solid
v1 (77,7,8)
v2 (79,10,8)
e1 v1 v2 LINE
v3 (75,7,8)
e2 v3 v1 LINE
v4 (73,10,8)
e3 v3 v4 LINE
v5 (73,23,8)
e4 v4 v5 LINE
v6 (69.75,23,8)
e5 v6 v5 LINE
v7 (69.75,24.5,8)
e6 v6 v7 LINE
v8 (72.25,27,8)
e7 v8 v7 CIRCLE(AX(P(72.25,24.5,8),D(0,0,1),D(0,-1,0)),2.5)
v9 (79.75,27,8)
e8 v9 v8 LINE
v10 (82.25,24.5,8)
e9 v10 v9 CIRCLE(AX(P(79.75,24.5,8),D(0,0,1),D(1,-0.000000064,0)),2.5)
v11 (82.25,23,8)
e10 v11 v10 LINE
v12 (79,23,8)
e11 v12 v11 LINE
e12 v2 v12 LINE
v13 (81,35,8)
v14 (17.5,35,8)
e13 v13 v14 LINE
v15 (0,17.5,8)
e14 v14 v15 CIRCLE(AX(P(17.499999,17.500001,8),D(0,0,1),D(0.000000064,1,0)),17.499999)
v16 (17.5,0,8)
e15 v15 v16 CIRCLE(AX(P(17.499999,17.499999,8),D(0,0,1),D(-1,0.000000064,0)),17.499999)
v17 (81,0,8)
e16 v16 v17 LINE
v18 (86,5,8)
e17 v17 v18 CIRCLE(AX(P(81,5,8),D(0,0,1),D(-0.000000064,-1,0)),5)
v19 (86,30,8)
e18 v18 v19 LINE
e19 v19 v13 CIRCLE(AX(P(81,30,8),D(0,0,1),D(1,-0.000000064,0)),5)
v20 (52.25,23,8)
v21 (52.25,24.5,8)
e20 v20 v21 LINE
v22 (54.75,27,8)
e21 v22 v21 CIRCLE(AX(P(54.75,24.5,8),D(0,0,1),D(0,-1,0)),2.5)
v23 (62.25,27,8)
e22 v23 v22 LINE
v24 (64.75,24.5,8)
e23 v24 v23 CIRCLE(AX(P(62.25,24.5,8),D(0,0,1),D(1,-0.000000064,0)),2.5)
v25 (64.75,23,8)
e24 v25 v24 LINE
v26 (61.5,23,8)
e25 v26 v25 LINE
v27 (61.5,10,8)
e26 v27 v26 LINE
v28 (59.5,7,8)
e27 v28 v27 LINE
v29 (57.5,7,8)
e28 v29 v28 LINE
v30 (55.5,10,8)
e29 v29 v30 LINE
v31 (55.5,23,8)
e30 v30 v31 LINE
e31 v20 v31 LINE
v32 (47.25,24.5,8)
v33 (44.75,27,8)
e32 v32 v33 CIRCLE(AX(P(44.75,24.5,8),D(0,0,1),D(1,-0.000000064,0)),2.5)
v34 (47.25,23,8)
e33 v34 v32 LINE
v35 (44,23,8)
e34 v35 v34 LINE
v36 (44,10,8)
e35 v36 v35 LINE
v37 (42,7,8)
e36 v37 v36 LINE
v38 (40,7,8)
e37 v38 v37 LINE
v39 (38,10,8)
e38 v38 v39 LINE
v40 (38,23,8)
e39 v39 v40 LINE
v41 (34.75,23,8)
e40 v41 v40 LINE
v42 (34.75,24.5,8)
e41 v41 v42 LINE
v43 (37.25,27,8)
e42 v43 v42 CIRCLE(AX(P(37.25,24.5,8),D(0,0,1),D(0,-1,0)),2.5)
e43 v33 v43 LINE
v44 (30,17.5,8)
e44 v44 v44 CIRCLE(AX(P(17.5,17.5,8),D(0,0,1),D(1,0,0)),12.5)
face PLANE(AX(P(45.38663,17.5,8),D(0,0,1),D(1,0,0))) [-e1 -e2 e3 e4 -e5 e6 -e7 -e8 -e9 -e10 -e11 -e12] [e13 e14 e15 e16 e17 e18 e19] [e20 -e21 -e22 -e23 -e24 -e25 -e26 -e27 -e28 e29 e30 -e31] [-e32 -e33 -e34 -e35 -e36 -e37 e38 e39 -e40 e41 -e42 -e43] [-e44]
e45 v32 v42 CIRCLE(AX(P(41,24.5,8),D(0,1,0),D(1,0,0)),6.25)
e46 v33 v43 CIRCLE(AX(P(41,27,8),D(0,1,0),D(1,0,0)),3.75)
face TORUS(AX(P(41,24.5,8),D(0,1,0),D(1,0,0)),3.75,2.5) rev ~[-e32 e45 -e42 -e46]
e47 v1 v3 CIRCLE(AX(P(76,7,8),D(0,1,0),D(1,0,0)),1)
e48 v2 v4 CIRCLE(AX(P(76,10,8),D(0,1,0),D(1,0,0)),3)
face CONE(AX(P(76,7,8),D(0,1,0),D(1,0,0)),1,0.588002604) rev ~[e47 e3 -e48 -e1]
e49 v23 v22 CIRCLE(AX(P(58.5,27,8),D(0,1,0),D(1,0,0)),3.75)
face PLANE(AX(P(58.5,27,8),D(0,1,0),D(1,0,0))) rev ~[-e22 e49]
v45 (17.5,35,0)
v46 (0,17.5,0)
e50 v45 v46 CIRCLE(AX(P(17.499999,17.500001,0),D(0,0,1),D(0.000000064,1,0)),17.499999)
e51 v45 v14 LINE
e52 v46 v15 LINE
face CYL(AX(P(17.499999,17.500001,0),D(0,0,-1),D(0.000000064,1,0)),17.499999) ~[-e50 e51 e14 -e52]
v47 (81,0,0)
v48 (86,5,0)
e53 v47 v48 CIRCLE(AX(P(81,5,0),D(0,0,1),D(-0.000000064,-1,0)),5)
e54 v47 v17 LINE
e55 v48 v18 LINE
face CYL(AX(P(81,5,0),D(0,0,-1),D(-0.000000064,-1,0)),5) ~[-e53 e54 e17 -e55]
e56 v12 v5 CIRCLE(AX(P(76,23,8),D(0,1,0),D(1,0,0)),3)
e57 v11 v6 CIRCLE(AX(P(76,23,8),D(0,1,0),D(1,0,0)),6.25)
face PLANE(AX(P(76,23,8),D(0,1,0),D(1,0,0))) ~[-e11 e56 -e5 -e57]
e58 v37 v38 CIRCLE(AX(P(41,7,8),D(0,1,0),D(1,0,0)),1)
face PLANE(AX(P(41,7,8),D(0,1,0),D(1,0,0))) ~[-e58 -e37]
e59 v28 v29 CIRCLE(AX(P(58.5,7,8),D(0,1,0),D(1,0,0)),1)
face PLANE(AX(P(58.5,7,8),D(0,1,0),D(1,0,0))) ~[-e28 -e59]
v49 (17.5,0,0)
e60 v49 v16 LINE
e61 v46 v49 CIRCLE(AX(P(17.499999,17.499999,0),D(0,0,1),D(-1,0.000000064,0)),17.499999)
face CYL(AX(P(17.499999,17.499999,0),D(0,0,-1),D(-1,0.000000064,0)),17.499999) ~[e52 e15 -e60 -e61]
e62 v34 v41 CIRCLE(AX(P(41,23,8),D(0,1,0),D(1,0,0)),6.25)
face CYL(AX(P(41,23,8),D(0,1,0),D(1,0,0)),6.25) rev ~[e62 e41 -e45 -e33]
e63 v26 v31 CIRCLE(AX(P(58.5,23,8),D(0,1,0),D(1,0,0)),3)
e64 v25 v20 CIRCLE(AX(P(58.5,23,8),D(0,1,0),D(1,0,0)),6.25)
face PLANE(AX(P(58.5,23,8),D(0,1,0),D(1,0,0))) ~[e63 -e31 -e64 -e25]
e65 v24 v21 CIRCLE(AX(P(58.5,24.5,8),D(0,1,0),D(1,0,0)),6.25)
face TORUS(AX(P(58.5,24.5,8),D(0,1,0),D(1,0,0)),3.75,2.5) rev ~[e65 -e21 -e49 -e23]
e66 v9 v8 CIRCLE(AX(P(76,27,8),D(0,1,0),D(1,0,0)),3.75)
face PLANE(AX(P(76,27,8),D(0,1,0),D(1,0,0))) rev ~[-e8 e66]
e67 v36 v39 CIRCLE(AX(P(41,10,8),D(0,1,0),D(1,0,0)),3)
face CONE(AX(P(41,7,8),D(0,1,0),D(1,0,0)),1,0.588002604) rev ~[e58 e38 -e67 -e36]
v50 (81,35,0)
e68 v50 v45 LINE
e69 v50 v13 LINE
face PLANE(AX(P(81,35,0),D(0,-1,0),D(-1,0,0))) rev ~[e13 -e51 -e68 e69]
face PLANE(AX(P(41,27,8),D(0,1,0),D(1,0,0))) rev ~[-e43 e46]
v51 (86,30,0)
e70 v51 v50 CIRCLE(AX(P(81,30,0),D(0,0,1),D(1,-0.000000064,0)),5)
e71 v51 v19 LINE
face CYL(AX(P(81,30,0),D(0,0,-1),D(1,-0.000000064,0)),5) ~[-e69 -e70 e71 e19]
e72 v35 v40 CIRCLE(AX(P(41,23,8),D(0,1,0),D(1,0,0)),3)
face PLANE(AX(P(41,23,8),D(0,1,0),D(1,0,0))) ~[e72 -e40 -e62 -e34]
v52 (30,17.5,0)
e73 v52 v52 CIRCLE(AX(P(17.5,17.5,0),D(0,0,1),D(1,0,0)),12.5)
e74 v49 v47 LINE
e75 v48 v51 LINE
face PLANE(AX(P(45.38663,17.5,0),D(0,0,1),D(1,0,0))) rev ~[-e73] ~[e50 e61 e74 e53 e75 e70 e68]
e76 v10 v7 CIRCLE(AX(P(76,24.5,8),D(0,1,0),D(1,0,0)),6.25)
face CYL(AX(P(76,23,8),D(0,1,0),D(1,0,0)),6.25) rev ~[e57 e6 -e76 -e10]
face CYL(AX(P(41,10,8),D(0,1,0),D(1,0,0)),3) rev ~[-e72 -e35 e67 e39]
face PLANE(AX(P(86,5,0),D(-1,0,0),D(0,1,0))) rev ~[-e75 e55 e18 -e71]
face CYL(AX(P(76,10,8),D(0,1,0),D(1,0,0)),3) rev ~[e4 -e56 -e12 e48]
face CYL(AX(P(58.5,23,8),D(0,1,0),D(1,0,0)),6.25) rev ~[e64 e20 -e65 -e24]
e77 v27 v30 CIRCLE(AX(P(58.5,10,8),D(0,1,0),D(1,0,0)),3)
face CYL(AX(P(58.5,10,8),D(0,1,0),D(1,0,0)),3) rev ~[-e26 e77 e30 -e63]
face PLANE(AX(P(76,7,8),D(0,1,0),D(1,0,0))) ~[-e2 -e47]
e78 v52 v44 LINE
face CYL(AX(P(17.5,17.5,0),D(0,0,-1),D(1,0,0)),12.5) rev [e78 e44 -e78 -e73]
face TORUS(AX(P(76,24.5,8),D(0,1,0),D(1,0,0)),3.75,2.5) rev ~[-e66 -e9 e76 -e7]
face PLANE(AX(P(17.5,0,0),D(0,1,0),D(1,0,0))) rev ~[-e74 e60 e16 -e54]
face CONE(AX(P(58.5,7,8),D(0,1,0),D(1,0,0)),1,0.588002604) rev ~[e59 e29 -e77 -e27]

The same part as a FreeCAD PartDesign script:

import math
import FreeCAD as App
import Part
import Sketcher

V = App.Vector

doc = App.newDocument("Part")
body = doc.addObject("PartDesign::Body", "Body")

sketch1 = body.newObject("Sketcher::SketchObject", "Sketch")
sketch1.AttachmentSupport = (doc.getObject("XY_Plane"), [""])
sketch1.MapMode = "FlatFace"
sketch1.addGeometry([
    Part.ArcOfCircle(Part.Circle(V(17.5, 17.5, 0), V(0, 0, 1), 17.5), math.radians(180), math.radians(270)),
    Part.LineSegment(V(17.5, 0, 0), V(81, 0, 0)),
    Part.ArcOfCircle(Part.Circle(V(81, 5, 0), V(0, 0, 1), 5), math.radians(-90), math.radians(0)),
    Part.LineSegment(V(86, 5, 0), V(86, 30, 0)),
    Part.ArcOfCircle(Part.Circle(V(81, 30, 0), V(0, 0, 1), 5), math.radians(0), math.radians(90)),
    Part.LineSegment(V(81, 35, 0), V(17.5, 35, 0)),
    Part.ArcOfCircle(Part.Circle(V(17.5, 17.5, 0), V(0, 0, 1), 17.5), math.radians(90), math.radians(180)),
    Part.Circle(V(17.5, 17.5, 0), V(0, 0, 1), 12.5),
], False)
sketch1.addConstraint([
    Sketcher.Constraint("Tangent", 0, 2, 1, 1),
    Sketcher.Constraint("Tangent", 1, 2, 2, 1),
    Sketcher.Constraint("Tangent", 2, 2, 3, 1),
    Sketcher.Constraint("Tangent", 3, 2, 4, 1),
    Sketcher.Constraint("Tangent", 4, 2, 5, 1),
    Sketcher.Constraint("Tangent", 5, 2, 6, 1),
    Sketcher.Constraint("Tangent", 6, 2, 0, 1),
    Sketcher.Constraint("Horizontal", 1),
    Sketcher.Constraint("Vertical", 3),
    Sketcher.Constraint("Horizontal", 5),
    Sketcher.Constraint("Coincident", 7, 3, 0, 3),
    Sketcher.Constraint("Equal", 2, 4),
    Sketcher.Constraint("Equal", 0, 6),
    Sketcher.Constraint("PointOnObject", 0, 2, -1),
    Sketcher.Constraint("PointOnObject", 6, 2, -2),
    Sketcher.Constraint("Horizontal", 7, 3, 6, 2),
    Sketcher.Constraint("Diameter", 7, 25.0),
    Sketcher.Constraint("Radius", 2, 5.0),
    Sketcher.Constraint("Radius", 0, 17.499999),
    Sketcher.Constraint("DistanceX", 1, 1, 1, 2, 63.5),
])
pad1 = body.newObject("PartDesign::Pad", "Pad")
pad1.Profile = sketch1
pad1.Length = 8

sketch2 = body.newObject("Sketcher::SketchObject", "Sketch001")
sketch2.AttachmentSupport = (doc.getObject("XY_Plane"), [""])
sketch2.MapMode = "FlatFace"
sketch2.AttachmentOffset = App.Placement(V(0, 0, 8), App.Rotation())
sketch2.addGeometry([
    Part.LineSegment(V(41, 7, 0), V(42, 7, 0)),
    Part.LineSegment(V(42, 7, 0), V(44, 10, 0)),
    Part.LineSegment(V(44, 10, 0), V(44, 23, 0)),
    Part.LineSegment(V(44, 23, 0), V(47.2, 23, 0)),
    Part.LineSegment(V(47.2, 23, 0), V(47.2, 24.5, 0)),
    Part.ArcOfCircle(Part.Circle(V(44.8, 24.5, 0), V(0, 0, 1), 2.5), math.radians(0), math.radians(90)),
    Part.LineSegment(V(44.8, 27, 0), V(41, 27, 0)),
    Part.LineSegment(V(41, 27, 0), V(41, 7, 0)),
], False)
sketch2.addGeometry(Part.LineSegment(V(41, 7, 0), V(41, 27, 0)), True)
sketch2.addConstraint([
    Sketcher.Constraint("Coincident", 0, 2, 1, 1),
    Sketcher.Constraint("Coincident", 1, 2, 2, 1),
    Sketcher.Constraint("Coincident", 2, 2, 3, 1),
    Sketcher.Constraint("Coincident", 3, 2, 4, 1),
    Sketcher.Constraint("Tangent", 4, 2, 5, 1),
    Sketcher.Constraint("Tangent", 5, 2, 6, 1),
    Sketcher.Constraint("Coincident", 6, 2, 7, 1),
    Sketcher.Constraint("Coincident", 7, 2, 0, 1),
    Sketcher.Constraint("Horizontal", 0),
    Sketcher.Constraint("Vertical", 2),
    Sketcher.Constraint("Horizontal", 3),
    Sketcher.Constraint("Vertical", 4),
    Sketcher.Constraint("Horizontal", 6),
    Sketcher.Constraint("Vertical", 7),
    Sketcher.Constraint("Vertical", 8),
    Sketcher.Constraint("Coincident", 8, 1, 7, 2),
    Sketcher.Constraint("Horizontal", 5, 2, 8, 2),
    Sketcher.Constraint("Radius", 5, 2.5),
    Sketcher.Constraint("DistanceX", 0, 1, 0, 2, 1.0),
    Sketcher.Constraint("DistanceY", 2, 1, 2, 2, 13.0),
    Sketcher.Constraint("DistanceY", 7, 2, 7, 1, 20.0),
    Sketcher.Constraint("DistanceY", 4, 1, 4, 2, 1.5),
    Sketcher.Constraint("DistanceX", -1, 1, 0, 2, 42.0),
    Sketcher.Constraint("DistanceY", -1, 1, 0, 2, 7.0),
    Sketcher.Constraint("DistanceX", -1, 1, 1, 2, 44.0),
    Sketcher.Constraint("DistanceX", 3, 1, 3, 2, 3.25),
])
groove = body.newObject("PartDesign::Groove", "Groove")
groove.Profile = sketch2
groove.ReferenceAxis = (sketch2, ["Axis0"])
groove.Angle = 360

sketch3 = body.newObject("Sketcher::SketchObject", "Sketch002")
sketch3.AttachmentSupport = (doc.getObject("XY_Plane"), [""])
sketch3.MapMode = "FlatFace"
sketch3.AttachmentOffset = App.Placement(V(0, 0, 8), App.Rotation())
sketch3.addGeometry([
    Part.LineSegment(V(58.5, 7, 0), V(59.5, 7, 0)),
    Part.LineSegment(V(59.5, 7, 0), V(61.5, 10, 0)),
    Part.LineSegment(V(61.5, 10, 0), V(61.5, 23, 0)),
    Part.LineSegment(V(61.5, 23, 0), V(64.8, 23, 0)),
    Part.LineSegment(V(64.8, 23, 0), V(64.8, 24.5, 0)),
    Part.ArcOfCircle(Part.Circle(V(62.3, 24.5, 0), V(0, 0, 1), 2.5), math.radians(0), math.radians(90)),
    Part.LineSegment(V(62.2, 27, 0), V(58.5, 27, 0)),
    Part.LineSegment(V(58.5, 27, 0), V(58.5, 7, 0)),
], False)
sketch3.addGeometry(Part.LineSegment(V(58.5, 7, 0), V(58.5, 27, 0)), True)
sketch3.addConstraint([
    Sketcher.Constraint("Coincident", 0, 2, 1, 1),
    Sketcher.Constraint("Coincident", 1, 2, 2, 1),
    Sketcher.Constraint("Coincident", 2, 2, 3, 1),
    Sketcher.Constraint("Coincident", 3, 2, 4, 1),
    Sketcher.Constraint("Tangent", 4, 2, 5, 1),
    Sketcher.Constraint("Tangent", 5, 2, 6, 1),
    Sketcher.Constraint("Coincident", 6, 2, 7, 1),
    Sketcher.Constraint("Coincident", 7, 2, 0, 1),
    Sketcher.Constraint("Horizontal", 0),
    Sketcher.Constraint("Vertical", 2),
    Sketcher.Constraint("Horizontal", 3),
    Sketcher.Constraint("Vertical", 4),
    Sketcher.Constraint("Horizontal", 6),
    Sketcher.Constraint("Vertical", 7),
    Sketcher.Constraint("Vertical", 8),
    Sketcher.Constraint("Coincident", 8, 1, 7, 2),
    Sketcher.Constraint("Horizontal", 5, 2, 8, 2),
    Sketcher.Constraint("Radius", 5, 2.5),
    Sketcher.Constraint("DistanceX", 0, 1, 0, 2, 1.0),
    Sketcher.Constraint("DistanceY", 2, 1, 2, 2, 13.0),
    Sketcher.Constraint("DistanceY", 7, 2, 7, 1, 20.0),
    Sketcher.Constraint("DistanceY", 4, 1, 4, 2, 1.5),
    Sketcher.Constraint("DistanceY", -1, 1, 0, 2, 7.0),
    Sketcher.Constraint("DistanceX", 0, 2, 1, 2, 2.0),
    Sketcher.Constraint("DistanceX", 3, 1, 3, 2, 3.25),
    Sketcher.Constraint("DistanceX", -1, 1, 0, 2, 59.5),
])
groove2 = body.newObject("PartDesign::Groove", "Groove001")
groove2.Profile = sketch3
groove2.ReferenceAxis = (sketch3, ["Axis0"])
groove2.Angle = 360

sketch4 = body.newObject("Sketcher::SketchObject", "Sketch003")
sketch4.AttachmentSupport = (doc.getObject("XY_Plane"), [""])
sketch4.MapMode = "FlatFace"
sketch4.AttachmentOffset = App.Placement(V(0, 0, 8), App.Rotation())
sketch4.addGeometry([
    Part.LineSegment(V(76, 7, 0), V(77, 7, 0)),
    Part.LineSegment(V(77, 7, 0), V(79, 10, 0)),
    Part.LineSegment(V(79, 10, 0), V(79, 23, 0)),
    Part.LineSegment(V(79, 23, 0), V(82.2, 23, 0)),
    Part.LineSegment(V(82.2, 23, 0), V(82.2, 24.5, 0)),
    Part.ArcOfCircle(Part.Circle(V(79.8, 24.5, 0), V(0, 0, 1), 2.5), math.radians(0), math.radians(90)),
    Part.LineSegment(V(79.8, 27, 0), V(76, 27, 0)),
    Part.LineSegment(V(76, 27, 0), V(76, 7, 0)),
], False)
sketch4.addGeometry(Part.LineSegment(V(76, 7, 0), V(76, 27, 0)), True)
sketch4.addConstraint([
    Sketcher.Constraint("Coincident", 0, 2, 1, 1),
    Sketcher.Constraint("Coincident", 1, 2, 2, 1),
    Sketcher.Constraint("Coincident", 2, 2, 3, 1),
    Sketcher.Constraint("Coincident", 3, 2, 4, 1),
    Sketcher.Constraint("Tangent", 4, 2, 5, 1),
    Sketcher.Constraint("Tangent", 5, 2, 6, 1),
    Sketcher.Constraint("Coincident", 6, 2, 7, 1),
    Sketcher.Constraint("Coincident", 7, 2, 0, 1),
    Sketcher.Constraint("Horizontal", 0),
    Sketcher.Constraint("Vertical", 2),
    Sketcher.Constraint("Horizontal", 3),
    Sketcher.Constraint("Vertical", 4),
    Sketcher.Constraint("Horizontal", 6),
    Sketcher.Constraint("Vertical", 7),
    Sketcher.Constraint("Vertical", 8),
    Sketcher.Constraint("Coincident", 8, 1, 7, 2),
    Sketcher.Constraint("Horizontal", 5, 2, 8, 2),
    Sketcher.Constraint("Radius", 5, 2.5),
    Sketcher.Constraint("DistanceX", 0, 1, 0, 2, 1.0),
    Sketcher.Constraint("DistanceY", 2, 1, 2, 2, 13.0),
    Sketcher.Constraint("DistanceY", 7, 2, 7, 1, 20.0),
    Sketcher.Constraint("DistanceY", 4, 1, 4, 2, 1.5),
    Sketcher.Constraint("DistanceX", -1, 1, 0, 2, 77.0),
    Sketcher.Constraint("DistanceY", -1, 1, 0, 2, 7.0),
    Sketcher.Constraint("DistanceX", -1, 1, 1, 2, 79.0),
    Sketcher.Constraint("DistanceX", 3, 1, 3, 2, 3.25),
])
groove3 = body.newObject("PartDesign::Groove", "Groove002")
groove3.Profile = sketch4
groove3.ReferenceAxis = (sketch4, ["Axis0"])
groove3.Angle = 360

doc.recompute()
